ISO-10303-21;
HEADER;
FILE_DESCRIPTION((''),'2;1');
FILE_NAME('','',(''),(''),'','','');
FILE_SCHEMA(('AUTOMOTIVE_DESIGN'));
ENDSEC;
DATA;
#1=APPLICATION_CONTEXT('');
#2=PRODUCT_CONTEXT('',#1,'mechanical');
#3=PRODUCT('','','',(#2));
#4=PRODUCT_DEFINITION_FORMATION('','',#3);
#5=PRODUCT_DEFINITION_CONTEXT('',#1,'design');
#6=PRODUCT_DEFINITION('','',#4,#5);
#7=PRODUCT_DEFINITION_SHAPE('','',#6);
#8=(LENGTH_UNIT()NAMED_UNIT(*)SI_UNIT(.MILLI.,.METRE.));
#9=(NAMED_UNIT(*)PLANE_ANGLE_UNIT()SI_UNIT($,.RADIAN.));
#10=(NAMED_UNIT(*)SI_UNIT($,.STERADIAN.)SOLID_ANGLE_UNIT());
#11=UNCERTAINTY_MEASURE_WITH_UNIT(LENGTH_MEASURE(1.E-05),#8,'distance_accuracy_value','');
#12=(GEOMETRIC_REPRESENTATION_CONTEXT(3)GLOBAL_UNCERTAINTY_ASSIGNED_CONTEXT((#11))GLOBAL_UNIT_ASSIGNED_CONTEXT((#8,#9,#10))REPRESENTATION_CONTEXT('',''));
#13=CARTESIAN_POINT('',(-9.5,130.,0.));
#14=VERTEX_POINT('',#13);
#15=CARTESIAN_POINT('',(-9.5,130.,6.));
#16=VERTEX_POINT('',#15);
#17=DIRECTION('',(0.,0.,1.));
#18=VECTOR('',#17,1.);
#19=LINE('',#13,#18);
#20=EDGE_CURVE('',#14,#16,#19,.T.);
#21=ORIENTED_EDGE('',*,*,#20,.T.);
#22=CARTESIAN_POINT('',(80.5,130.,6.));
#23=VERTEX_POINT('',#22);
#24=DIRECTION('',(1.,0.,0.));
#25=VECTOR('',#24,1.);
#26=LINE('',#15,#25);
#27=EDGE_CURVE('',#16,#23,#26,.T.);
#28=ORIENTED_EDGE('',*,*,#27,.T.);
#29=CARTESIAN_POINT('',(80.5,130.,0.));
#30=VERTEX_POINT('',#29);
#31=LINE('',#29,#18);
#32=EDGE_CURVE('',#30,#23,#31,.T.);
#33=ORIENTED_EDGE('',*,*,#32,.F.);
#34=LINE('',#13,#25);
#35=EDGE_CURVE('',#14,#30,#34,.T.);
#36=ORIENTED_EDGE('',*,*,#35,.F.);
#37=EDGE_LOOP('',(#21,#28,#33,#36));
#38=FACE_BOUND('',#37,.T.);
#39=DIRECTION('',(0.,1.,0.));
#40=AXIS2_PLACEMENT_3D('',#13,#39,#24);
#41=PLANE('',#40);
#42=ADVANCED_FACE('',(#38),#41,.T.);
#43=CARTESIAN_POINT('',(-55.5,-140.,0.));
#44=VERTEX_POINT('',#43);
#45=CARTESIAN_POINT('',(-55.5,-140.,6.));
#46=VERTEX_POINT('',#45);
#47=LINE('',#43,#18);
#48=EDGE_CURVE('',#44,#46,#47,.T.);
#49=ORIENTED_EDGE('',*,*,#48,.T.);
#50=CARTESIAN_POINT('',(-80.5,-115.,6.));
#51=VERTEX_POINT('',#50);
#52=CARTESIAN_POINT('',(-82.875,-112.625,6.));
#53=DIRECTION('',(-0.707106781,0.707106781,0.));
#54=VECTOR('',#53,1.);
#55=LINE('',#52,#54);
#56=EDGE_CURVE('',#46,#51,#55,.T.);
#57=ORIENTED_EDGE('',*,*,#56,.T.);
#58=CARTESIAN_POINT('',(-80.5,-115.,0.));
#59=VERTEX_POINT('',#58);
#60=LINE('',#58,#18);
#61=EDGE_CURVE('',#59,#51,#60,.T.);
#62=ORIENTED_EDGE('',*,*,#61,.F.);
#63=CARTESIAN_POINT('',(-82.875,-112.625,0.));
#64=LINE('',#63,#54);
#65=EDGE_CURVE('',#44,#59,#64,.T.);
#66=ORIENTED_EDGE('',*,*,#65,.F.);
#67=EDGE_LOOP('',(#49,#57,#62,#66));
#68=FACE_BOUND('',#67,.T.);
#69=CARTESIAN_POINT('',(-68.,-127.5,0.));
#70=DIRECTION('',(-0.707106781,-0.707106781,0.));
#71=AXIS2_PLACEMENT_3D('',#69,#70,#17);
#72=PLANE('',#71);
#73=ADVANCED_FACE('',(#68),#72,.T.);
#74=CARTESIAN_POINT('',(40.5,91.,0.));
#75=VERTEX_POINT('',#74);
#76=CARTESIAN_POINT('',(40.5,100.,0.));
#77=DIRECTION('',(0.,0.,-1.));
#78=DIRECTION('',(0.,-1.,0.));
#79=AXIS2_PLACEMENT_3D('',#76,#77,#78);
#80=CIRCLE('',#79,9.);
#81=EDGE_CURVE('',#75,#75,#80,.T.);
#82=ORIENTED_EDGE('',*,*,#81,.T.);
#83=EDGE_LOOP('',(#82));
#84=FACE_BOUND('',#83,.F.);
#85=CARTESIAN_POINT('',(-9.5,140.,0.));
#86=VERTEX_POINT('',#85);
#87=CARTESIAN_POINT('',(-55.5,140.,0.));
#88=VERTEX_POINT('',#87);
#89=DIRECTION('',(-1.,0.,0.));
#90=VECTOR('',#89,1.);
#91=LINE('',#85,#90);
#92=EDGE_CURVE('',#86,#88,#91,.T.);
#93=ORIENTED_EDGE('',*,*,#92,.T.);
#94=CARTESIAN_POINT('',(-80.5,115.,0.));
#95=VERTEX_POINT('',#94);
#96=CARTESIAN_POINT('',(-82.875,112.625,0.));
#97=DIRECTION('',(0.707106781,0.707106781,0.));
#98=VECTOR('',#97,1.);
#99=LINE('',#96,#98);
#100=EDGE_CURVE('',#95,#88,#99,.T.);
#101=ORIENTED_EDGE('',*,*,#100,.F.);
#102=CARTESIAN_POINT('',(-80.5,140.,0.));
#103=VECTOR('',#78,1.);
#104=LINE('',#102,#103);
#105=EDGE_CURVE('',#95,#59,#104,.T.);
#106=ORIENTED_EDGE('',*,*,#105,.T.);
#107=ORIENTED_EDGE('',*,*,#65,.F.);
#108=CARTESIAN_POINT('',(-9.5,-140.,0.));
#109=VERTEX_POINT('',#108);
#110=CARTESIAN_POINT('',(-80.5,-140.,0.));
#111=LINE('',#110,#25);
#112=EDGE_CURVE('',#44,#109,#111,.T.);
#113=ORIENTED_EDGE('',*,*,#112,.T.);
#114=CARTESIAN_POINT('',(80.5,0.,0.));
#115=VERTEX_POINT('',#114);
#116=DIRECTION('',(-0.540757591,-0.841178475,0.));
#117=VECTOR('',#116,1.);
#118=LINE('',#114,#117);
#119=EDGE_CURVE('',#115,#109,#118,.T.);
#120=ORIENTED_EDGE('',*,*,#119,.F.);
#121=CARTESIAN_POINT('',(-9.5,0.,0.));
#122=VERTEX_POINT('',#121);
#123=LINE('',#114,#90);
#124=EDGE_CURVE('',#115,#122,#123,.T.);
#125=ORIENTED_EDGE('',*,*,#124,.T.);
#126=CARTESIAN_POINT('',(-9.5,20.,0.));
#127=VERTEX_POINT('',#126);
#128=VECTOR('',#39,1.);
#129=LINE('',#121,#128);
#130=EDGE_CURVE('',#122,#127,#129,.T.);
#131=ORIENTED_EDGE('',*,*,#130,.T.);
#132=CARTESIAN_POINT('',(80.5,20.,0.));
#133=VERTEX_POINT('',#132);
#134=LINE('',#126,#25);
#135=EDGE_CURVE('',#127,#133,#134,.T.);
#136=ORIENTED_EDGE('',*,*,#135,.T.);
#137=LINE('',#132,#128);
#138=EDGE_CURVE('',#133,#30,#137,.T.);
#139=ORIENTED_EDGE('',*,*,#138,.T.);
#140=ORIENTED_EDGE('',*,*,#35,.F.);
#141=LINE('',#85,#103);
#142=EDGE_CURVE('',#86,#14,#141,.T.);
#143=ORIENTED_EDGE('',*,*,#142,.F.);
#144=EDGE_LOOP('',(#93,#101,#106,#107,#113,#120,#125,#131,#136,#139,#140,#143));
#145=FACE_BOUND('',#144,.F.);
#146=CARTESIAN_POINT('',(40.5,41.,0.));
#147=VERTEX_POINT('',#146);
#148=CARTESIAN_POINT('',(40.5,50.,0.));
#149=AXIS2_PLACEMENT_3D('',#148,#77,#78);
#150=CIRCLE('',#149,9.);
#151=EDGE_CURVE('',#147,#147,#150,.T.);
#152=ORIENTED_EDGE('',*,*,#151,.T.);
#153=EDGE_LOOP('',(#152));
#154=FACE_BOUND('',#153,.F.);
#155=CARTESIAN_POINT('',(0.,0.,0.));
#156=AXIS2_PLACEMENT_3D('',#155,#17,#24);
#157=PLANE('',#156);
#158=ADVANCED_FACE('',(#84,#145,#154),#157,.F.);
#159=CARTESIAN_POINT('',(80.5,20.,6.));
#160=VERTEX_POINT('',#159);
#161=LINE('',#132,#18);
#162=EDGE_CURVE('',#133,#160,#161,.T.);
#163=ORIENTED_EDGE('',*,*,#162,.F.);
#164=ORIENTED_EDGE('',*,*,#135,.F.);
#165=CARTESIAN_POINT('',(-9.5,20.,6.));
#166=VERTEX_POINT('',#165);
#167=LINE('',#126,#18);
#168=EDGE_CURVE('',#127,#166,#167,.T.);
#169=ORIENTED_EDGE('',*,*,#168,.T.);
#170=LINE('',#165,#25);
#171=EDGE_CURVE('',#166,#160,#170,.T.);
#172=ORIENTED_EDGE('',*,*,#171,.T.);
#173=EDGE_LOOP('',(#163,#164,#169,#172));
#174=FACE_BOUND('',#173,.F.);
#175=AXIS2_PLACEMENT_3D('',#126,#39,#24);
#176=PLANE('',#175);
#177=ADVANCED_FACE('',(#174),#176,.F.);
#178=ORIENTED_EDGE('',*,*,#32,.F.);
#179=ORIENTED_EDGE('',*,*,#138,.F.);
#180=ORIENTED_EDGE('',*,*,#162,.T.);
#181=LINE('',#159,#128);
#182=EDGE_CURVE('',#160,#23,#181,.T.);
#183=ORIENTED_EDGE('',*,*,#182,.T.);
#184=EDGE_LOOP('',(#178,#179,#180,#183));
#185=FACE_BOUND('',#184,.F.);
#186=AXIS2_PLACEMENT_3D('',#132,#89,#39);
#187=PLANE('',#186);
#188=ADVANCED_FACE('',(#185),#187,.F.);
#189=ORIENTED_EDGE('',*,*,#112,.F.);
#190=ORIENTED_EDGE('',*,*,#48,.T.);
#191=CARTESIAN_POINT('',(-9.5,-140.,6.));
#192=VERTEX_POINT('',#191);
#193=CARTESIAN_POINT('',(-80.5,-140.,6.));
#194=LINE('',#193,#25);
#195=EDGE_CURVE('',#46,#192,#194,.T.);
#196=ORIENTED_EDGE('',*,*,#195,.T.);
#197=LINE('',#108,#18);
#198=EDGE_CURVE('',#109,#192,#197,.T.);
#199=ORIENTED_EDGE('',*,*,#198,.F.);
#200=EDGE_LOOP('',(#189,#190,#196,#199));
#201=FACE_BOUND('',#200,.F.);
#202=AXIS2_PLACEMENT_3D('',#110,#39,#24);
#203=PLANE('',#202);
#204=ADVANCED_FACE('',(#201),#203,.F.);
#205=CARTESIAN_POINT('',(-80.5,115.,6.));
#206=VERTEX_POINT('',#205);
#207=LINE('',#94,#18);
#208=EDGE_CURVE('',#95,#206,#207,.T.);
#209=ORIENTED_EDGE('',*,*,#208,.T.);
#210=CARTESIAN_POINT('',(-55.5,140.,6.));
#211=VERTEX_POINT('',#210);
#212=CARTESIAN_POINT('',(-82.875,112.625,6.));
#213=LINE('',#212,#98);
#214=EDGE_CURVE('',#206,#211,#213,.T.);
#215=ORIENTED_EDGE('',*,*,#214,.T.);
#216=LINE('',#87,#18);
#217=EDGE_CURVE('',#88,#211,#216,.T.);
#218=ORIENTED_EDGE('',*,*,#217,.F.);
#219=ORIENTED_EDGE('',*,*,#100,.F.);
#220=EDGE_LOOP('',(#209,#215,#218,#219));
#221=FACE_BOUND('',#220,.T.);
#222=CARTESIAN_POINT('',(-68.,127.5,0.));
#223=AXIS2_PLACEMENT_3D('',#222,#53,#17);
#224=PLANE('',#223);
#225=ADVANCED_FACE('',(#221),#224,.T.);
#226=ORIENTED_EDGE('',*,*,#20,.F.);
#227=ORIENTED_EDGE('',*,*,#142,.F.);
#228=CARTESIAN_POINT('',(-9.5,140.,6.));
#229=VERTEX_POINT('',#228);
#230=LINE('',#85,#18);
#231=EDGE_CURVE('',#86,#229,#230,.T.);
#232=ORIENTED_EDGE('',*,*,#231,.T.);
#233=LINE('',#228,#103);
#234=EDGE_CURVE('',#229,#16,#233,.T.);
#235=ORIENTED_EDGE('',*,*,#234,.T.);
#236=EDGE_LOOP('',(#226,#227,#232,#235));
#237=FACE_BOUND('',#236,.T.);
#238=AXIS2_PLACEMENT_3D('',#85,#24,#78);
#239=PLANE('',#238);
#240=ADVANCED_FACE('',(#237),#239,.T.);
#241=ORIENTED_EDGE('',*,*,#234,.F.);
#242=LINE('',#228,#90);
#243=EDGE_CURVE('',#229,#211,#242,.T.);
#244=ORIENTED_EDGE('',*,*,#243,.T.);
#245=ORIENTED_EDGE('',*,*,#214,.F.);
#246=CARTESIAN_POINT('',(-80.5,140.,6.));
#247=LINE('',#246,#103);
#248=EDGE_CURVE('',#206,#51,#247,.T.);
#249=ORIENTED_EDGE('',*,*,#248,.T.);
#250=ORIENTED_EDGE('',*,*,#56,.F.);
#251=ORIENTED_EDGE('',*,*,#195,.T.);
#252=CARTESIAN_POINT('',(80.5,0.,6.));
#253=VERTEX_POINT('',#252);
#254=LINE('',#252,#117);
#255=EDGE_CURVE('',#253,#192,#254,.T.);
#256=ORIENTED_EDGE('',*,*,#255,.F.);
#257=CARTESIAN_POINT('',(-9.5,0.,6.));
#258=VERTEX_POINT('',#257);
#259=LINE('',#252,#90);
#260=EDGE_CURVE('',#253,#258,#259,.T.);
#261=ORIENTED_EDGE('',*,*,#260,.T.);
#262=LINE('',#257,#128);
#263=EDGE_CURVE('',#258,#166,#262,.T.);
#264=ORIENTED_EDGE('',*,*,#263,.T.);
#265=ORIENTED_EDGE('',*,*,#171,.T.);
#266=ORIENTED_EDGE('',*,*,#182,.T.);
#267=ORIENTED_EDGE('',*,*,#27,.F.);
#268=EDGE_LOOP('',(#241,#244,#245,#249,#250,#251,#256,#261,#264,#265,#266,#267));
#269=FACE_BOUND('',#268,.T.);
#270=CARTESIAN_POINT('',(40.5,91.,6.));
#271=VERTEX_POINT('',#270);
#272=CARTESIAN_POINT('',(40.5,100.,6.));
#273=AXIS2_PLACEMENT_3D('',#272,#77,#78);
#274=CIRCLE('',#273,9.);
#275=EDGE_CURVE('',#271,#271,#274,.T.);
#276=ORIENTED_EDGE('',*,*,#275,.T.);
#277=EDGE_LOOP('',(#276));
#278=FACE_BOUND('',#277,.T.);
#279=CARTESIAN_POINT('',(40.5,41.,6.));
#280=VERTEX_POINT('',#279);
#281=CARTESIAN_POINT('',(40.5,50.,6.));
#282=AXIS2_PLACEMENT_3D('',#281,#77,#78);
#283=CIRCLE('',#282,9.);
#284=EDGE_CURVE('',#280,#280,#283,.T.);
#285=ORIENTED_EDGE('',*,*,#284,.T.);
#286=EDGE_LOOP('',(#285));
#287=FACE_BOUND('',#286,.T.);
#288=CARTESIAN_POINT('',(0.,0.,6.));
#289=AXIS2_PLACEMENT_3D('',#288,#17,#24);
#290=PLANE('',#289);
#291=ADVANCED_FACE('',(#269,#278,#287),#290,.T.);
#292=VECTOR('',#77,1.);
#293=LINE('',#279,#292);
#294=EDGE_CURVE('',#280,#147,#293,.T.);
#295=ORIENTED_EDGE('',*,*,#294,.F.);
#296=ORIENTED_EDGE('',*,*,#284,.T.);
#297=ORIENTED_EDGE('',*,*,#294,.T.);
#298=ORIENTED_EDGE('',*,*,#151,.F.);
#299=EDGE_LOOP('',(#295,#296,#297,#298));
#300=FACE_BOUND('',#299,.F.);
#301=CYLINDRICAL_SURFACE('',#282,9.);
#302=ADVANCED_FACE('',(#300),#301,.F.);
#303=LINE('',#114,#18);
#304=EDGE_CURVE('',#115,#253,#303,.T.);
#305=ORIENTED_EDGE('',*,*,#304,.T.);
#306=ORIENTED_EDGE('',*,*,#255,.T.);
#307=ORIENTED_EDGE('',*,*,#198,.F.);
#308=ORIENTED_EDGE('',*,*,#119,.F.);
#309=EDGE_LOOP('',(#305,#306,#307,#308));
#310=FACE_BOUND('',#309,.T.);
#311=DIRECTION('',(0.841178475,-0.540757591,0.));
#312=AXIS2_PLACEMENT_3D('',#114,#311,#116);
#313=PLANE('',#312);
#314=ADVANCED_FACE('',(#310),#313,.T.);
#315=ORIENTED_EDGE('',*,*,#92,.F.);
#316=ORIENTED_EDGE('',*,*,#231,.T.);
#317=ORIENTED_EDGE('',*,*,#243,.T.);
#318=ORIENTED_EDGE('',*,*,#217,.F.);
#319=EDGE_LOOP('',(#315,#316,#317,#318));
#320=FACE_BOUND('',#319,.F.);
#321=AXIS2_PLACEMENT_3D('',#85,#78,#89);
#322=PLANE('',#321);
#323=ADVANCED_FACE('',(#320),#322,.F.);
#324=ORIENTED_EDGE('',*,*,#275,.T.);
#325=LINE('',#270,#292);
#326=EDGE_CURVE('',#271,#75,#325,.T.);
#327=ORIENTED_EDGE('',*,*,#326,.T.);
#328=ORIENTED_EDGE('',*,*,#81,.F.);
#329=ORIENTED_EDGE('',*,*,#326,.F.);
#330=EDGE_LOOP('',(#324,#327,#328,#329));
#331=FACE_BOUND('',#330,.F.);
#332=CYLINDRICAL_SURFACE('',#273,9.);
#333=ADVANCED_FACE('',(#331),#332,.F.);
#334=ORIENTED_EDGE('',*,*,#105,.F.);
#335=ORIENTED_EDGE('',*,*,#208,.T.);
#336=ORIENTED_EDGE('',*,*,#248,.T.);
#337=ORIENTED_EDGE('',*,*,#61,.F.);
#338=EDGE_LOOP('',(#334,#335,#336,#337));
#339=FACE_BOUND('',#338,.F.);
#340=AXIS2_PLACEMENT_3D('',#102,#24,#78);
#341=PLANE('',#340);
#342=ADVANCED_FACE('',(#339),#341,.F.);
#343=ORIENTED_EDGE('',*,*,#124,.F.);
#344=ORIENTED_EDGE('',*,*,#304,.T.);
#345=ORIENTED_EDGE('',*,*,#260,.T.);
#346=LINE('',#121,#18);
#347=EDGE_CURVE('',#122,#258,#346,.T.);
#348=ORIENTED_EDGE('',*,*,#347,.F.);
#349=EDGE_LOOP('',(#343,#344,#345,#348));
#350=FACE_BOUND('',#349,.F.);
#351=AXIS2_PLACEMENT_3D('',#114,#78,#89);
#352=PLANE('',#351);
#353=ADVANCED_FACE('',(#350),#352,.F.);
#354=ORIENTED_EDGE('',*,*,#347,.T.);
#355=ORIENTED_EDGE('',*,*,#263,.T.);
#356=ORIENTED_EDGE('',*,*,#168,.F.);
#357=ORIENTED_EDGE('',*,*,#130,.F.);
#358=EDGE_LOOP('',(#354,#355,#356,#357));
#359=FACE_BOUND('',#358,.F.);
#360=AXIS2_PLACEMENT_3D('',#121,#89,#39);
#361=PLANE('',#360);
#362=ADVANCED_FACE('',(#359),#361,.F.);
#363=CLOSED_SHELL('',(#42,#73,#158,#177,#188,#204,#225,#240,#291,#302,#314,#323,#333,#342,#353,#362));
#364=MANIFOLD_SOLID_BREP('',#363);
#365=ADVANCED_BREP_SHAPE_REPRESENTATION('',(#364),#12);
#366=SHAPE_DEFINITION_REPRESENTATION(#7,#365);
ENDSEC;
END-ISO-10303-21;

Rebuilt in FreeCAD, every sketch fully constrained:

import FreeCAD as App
import Part
import Sketcher

V = App.Vector


def edges_at(feature, points):
    """Names of the edges that pass closest to the given points."""
    edges = feature.Shape.Edges
    near = lambda p: min(range(len(edges)), key=lambda i: edges[i].distToShape(Part.Vertex(*p))[0])
    return sorted({f"Edge{near(p) + 1}" for p in points})


def add_polygon(sketch, points):
    """Adds a closed chain of lines whose ends are joined by coincident constraints."""
    first, n = sketch.GeometryCount, len(points)
    for a, b in zip(points, points[1:] + points[:1]):
        sketch.addGeometry(Part.LineSegment(App.Vector(*a, 0), App.Vector(*b, 0)), False)
    for i in range(n):
        sketch.addConstraint(Sketcher.Constraint("Coincident", first + i, 2, first + (i + 1) % n, 1))

doc = App.newDocument("Part")
body = doc.addObject("PartDesign::Body", "Body")

sketch1 = body.newObject("Sketcher::SketchObject", "Sketch")
sketch1.AttachmentSupport = (doc.getObject("XY_Plane"), [""])
sketch1.MapMode = "FlatFace"
add_polygon(sketch1, [(-9.5, 130), (-9.5, 140), (-80.5, 140), (-80.5, -140), (-9.5, -140), (80.5, 0), (-9.5, 0), (-9.5, 20), (80.5, 20), (80.5, 130)])
sketch1.addConstraint(Sketcher.Constraint("Vertical", 0))
sketch1.addConstraint(Sketcher.Constraint("Horizontal", 1))
sketch1.addConstraint(Sketcher.Constraint("Vertical", 2))
sketch1.addConstraint(Sketcher.Constraint("Horizontal", 3))
sketch1.addConstraint(Sketcher.Constraint("Horizontal", 5))
sketch1.addConstraint(Sketcher.Constraint("Vertical", 6))
sketch1.addConstraint(Sketcher.Constraint("Horizontal", 7))
sketch1.addConstraint(Sketcher.Constraint("Vertical", 8))
sketch1.addConstraint(Sketcher.Constraint("Horizontal", 9))
sketch1.addConstraint(Sketcher.Constraint("Symmetric", 0, 2, 3, 2, -1))
sketch1.addConstraint(Sketcher.Constraint("PointOnObject", 4, 2, -1))
sketch1.addConstraint(Sketcher.Constraint("Vertical", 3, 2, 5, 2))
sketch1.addConstraint(Sketcher.Constraint("Vertical", 4, 2, 7, 2))
sketch1.addConstraint(Sketcher.Constraint("DistanceX", 1, 2, 1, 1, 71.0))
sketch1.addConstraint(Sketcher.Constraint("DistanceX", 5, 2, 5, 1, 90.0))
sketch1.addConstraint(Sketcher.Constraint("DistanceY", 2, 2, 2, 1, 280.0))
sketch1.addConstraint(Sketcher.Constraint("DistanceY", 6, 1, 6, 2, 20.0))
sketch1.addConstraint(Sketcher.Constraint("DistanceY", 0, 1, 0, 2, 10.0))
sketch1.addConstraint(Sketcher.Constraint("DistanceX", 0, 2, -1, 1, 9.5))
pad1 = body.newObject("PartDesign::Pad", "Pad")
pad1.Profile = sketch1
pad1.Length = 6
doc.recompute()

chamfer = body.newObject("PartDesign::Chamfer", "Chamfer")
chamfer.Base = (pad1, edges_at(pad1, [(-80.5, -140, 3), (-80.5, 140, 3)]))
chamfer.Size = 25

sketch2 = body.newObject("Sketcher::SketchObject", "Sketch001")
sketch2.AttachmentSupport = (doc.getObject("XY_Plane"), [""])
sketch2.MapMode = "FlatFace"
sketch2.AttachmentOffset = App.Placement(V(0, 0, 6), App.Rotation())
sketch2.addGeometry(Part.Circle(V(40.5, 100, 0), V(0, 0, 1), 9), False)
sketch2.addGeometry(Part.Circle(V(40.5, 50, 0), V(0, 0, 1), 9), False)
sketch2.addConstraint(Sketcher.Constraint("Equal", 0, 1))
sketch2.addConstraint(Sketcher.Constraint("Vertical", 0, 3, 1, 3))
sketch2.addConstraint(Sketcher.Constraint("Diameter", 0, 18.0))
sketch2.addConstraint(Sketcher.Constraint("DistanceY", -1, 1, 0, 3, 100.0))
sketch2.addConstraint(Sketcher.Constraint("DistanceY", -1, 1, 1, 3, 50.0))
sketch2.addConstraint(Sketcher.Constraint("DistanceX", -1, 1, 0, 3, 40.5))
doc.recompute()
hole = body.newObject("PartDesign::Hole", "Hole")
hole.Profile = sketch2
hole.ThreadType = "None"
hole.Diameter = 18
hole.DepthType = "ThroughAll"

doc.recompute()
